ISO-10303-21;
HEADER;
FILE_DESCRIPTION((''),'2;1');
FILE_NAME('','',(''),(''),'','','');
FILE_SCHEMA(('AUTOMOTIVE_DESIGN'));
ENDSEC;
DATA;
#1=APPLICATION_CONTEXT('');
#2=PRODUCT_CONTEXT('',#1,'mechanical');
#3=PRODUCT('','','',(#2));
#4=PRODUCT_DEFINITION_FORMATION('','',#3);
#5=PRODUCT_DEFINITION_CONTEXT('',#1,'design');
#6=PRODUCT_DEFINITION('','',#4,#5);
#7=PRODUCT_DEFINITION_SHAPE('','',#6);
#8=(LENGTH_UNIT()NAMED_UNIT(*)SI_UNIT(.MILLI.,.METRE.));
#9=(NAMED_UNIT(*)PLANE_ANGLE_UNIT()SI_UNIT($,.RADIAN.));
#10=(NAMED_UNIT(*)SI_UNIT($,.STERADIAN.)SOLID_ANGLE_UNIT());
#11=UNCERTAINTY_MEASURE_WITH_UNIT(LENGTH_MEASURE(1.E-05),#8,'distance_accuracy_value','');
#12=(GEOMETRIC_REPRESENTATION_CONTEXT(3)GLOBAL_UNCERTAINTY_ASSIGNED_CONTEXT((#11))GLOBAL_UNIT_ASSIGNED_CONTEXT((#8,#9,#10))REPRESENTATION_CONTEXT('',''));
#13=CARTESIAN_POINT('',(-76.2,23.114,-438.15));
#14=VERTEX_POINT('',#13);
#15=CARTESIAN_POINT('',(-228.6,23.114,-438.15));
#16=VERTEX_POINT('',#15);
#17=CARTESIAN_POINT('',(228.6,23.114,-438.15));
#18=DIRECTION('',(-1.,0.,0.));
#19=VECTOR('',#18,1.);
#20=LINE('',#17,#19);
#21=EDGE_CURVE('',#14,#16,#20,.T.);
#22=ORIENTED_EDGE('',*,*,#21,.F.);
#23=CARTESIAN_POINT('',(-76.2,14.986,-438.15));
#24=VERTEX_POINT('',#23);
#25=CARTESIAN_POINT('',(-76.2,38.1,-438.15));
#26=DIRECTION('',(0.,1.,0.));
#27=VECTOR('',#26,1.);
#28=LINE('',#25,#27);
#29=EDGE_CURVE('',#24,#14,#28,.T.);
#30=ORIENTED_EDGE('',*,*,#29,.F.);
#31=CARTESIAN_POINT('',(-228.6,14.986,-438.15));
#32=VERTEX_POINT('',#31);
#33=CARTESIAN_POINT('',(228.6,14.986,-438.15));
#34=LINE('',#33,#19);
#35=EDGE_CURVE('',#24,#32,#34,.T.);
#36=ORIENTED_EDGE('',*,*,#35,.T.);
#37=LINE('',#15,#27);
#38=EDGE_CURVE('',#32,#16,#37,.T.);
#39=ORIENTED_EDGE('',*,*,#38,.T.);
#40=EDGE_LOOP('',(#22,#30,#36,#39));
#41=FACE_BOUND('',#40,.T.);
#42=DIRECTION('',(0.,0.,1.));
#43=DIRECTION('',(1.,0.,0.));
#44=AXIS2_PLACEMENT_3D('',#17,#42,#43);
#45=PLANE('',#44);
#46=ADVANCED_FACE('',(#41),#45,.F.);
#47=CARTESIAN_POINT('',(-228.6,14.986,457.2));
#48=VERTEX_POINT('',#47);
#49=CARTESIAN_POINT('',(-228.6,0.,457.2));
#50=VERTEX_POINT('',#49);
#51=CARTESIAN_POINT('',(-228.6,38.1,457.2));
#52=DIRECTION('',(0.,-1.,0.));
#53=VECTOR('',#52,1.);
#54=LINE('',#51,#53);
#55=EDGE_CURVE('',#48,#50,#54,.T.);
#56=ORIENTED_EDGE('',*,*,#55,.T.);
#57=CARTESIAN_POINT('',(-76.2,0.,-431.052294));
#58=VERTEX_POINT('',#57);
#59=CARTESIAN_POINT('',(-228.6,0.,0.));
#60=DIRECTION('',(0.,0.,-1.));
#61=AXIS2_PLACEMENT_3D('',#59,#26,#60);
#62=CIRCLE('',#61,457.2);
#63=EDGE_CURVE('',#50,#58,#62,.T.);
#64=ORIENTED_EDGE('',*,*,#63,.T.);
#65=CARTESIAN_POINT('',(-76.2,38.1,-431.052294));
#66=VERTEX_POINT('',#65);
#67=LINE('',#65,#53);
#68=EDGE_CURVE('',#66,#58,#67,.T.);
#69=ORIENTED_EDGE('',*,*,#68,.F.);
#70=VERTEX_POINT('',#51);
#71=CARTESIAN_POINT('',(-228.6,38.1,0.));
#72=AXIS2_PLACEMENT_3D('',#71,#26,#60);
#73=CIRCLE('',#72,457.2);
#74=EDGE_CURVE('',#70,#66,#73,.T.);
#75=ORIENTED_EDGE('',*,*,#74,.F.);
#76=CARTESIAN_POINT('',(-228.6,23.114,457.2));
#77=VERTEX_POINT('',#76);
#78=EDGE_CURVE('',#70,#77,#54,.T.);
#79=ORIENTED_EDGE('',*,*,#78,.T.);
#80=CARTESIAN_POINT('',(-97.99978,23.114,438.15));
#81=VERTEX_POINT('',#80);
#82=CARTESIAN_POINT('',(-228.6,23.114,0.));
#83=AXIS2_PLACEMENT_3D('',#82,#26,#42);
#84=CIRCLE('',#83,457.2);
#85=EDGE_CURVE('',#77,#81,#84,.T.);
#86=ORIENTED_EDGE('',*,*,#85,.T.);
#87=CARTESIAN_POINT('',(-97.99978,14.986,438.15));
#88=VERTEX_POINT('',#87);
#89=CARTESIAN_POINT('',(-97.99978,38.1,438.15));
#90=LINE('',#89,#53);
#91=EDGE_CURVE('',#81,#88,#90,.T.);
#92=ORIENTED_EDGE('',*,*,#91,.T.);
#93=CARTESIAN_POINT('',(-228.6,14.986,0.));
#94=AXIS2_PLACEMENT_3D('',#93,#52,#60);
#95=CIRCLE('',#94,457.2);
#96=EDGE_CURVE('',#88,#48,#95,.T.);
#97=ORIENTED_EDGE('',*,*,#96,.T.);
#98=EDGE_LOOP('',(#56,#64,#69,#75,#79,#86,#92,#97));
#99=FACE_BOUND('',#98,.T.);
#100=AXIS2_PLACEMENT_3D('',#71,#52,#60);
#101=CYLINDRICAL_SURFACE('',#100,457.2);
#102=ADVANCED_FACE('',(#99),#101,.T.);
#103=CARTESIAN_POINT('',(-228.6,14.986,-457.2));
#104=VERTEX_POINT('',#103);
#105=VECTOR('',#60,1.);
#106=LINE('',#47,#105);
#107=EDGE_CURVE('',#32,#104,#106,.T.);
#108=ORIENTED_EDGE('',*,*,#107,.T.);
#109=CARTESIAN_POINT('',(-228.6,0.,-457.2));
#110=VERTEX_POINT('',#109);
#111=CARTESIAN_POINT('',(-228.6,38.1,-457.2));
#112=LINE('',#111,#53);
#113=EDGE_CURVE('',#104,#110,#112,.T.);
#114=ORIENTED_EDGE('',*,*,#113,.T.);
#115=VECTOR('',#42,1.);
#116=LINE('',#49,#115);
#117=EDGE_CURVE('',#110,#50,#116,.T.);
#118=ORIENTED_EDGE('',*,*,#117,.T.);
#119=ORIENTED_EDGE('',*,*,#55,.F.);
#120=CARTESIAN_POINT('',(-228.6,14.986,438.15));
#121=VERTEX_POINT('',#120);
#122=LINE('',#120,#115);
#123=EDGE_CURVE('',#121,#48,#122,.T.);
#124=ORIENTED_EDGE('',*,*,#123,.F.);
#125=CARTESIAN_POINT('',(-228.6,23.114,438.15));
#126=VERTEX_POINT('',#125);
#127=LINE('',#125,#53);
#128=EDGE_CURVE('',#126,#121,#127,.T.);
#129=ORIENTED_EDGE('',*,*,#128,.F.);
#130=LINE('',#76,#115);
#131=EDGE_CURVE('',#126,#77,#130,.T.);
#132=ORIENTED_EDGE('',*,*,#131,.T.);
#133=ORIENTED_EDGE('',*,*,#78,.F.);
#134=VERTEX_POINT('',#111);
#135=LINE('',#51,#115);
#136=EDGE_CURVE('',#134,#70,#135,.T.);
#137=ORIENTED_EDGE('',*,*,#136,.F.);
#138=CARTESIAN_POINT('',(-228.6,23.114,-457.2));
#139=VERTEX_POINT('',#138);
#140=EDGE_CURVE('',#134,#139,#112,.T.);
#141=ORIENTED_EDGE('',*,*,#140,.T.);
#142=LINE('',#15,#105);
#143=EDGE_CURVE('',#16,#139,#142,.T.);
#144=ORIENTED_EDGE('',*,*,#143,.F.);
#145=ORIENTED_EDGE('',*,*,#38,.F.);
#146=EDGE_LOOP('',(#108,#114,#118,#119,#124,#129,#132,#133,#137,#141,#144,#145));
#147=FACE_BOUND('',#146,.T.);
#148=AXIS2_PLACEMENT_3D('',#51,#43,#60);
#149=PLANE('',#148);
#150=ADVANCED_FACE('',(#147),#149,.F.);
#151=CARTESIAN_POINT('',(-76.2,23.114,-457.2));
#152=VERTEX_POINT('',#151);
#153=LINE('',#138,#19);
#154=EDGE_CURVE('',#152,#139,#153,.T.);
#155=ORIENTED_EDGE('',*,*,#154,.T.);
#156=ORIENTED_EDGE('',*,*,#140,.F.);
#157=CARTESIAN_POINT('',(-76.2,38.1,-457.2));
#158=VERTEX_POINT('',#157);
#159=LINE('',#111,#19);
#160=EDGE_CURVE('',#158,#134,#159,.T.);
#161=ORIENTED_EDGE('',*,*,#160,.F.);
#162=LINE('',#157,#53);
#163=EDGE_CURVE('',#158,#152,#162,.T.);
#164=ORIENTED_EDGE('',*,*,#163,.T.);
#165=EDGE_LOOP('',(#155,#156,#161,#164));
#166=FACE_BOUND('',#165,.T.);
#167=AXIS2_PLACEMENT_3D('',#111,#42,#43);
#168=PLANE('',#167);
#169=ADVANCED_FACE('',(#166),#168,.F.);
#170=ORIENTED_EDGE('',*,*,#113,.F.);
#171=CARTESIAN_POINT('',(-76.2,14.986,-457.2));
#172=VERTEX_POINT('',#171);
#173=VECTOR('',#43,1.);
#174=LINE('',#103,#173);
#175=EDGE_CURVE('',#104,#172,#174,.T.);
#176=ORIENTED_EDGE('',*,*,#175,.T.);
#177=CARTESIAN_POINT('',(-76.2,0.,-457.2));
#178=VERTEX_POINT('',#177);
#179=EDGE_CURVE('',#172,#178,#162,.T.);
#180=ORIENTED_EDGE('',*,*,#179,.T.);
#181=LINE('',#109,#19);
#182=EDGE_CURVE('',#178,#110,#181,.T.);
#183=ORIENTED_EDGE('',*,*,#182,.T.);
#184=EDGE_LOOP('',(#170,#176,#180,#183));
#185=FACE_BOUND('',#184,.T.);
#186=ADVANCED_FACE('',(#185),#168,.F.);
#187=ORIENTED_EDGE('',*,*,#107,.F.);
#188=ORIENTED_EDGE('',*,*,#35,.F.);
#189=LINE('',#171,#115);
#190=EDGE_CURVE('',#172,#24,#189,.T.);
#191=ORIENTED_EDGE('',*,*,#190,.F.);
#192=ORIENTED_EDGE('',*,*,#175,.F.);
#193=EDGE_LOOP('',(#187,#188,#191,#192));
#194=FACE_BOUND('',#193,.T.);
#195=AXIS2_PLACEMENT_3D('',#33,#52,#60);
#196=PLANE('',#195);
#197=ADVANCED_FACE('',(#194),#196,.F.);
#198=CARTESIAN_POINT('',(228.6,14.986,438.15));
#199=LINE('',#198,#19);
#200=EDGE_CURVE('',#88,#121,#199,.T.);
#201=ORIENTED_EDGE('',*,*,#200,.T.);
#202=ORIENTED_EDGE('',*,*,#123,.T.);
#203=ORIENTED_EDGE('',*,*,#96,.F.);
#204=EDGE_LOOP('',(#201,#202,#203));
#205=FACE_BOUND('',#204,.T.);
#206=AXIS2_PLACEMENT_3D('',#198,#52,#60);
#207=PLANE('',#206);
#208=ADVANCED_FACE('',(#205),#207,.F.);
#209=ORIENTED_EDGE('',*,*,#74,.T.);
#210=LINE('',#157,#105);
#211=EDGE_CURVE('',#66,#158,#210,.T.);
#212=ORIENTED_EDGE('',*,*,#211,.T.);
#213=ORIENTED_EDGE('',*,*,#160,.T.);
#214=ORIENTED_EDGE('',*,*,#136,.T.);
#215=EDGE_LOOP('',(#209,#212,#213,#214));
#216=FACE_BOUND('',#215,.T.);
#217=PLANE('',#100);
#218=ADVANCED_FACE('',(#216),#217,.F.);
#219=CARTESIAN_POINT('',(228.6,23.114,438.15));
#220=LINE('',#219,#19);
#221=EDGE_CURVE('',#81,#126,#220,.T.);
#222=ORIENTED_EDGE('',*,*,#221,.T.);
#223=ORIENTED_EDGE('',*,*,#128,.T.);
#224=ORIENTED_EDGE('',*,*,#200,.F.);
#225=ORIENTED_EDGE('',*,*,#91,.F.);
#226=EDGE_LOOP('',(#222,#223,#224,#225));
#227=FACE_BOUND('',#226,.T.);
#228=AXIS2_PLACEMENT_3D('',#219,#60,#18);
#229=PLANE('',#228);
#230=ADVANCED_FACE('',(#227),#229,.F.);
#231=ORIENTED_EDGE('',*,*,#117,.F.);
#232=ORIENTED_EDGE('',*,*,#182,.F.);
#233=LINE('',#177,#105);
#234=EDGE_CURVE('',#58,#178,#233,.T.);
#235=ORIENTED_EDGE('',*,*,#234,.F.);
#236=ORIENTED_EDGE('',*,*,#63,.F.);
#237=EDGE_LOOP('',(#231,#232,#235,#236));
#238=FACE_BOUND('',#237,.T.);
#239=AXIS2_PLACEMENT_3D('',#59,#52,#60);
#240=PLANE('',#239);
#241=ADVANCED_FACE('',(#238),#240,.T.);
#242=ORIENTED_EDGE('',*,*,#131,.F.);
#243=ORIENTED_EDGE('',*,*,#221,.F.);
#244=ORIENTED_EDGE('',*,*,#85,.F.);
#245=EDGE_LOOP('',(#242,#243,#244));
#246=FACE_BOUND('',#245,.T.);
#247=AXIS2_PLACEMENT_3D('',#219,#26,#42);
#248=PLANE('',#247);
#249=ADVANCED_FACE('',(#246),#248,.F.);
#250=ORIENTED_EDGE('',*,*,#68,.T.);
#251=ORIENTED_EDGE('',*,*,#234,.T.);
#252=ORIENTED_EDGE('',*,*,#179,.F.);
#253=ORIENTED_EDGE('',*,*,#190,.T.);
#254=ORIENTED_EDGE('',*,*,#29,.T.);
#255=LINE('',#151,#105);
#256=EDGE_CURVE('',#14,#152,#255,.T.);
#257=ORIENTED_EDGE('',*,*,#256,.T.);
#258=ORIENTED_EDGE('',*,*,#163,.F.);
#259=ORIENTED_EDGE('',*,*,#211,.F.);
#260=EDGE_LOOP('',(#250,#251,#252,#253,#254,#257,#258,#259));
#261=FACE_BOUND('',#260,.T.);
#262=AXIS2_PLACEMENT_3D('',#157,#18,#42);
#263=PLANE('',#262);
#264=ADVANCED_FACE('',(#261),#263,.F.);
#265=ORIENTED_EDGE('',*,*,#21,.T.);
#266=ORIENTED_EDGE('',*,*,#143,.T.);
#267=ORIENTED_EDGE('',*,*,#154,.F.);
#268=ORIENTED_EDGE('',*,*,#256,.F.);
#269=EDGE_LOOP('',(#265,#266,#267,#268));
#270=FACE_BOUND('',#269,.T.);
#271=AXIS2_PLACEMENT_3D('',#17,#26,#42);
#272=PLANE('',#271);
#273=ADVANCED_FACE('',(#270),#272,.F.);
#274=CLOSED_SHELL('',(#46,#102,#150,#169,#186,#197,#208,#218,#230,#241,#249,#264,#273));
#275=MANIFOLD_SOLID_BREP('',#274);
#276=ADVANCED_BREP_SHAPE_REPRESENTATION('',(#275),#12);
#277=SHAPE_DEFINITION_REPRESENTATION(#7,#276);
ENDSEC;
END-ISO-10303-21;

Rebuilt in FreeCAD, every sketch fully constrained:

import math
import FreeCAD as App
import Part
import Sketcher
Q = App.Units.Quantity


def add_polygon(sketch, points):
    """Adds a closed chain of lines whose ends are joined by coincident constraints."""
    first, n = sketch.GeometryCount, len(points)
    for a, b in zip(points, points[1:] + points[:1]):
        sketch.addGeometry(Part.LineSegment(App.Vector(*a, 0), App.Vector(*b, 0)), False)
    for i in range(n):
        sketch.addConstraint(Sketcher.Constraint("Coincident", first + i, 2, first + (i + 1) % n, 1))

doc = App.newDocument("Part")
body = doc.addObject("PartDesign::Body", "Body")

# Sketch on XZ plane
sketch1 = body.newObject("Sketcher::SketchObject", "Sketch")
sketch1.AttachmentSupport = (doc.getObject("XZ_Plane"), [""])
sketch1.MapMode = "FlatFace"
sketch1.addGeometry(Part.LineSegment(App.Vector(-76.2, -457.2, 0), App.Vector(-228.6, -457.2, 0)), False)
sketch1.addGeometry(Part.LineSegment(App.Vector(-228.6, -457.2, 0), App.Vector(-228.6, 457.2, 0)), False)
sketch1.addGeometry(Part.ArcOfCircle(Part.Circle(App.Vector(-228.6, 0, 0), App.Vector(0, 0, 1), 457.2), math.radians(-70.528779), math.radians(90)), False)
sketch1.addGeometry(Part.LineSegment(App.Vector(-76.2, -431.052294, 0), App.Vector(-76.2, -457.2, 0)), False)
sketch1.addConstraint(Sketcher.Constraint("Coincident", 0, 2, 1, 1))
sketch1.addConstraint(Sketcher.Constraint("Coincident", 1, 2, 2, 2))
sketch1.addConstraint(Sketcher.Constraint("Coincident", 2, 1, 3, 1))
sketch1.addConstraint(Sketcher.Constraint("Coincident", 3, 2, 0, 1))
sketch1.addConstraint(Sketcher.Constraint("Horizontal", 0))
sketch1.addConstraint(Sketcher.Constraint("Vertical", 1))
sketch1.addConstraint(Sketcher.Constraint("Vertical", 3))
sketch1.addConstraint(Sketcher.Constraint("PointOnObject", 2, 3, -1))
sketch1.addConstraint(Sketcher.Constraint("Vertical", 2, 3, 0, 2))
sketch1.addConstraint(Sketcher.Constraint("Radius", 2, Q("18 in")))
sketch1.addConstraint(Sketcher.Constraint("DistanceX", 0, 2, 0, 1, Q("6 in")))
sketch1.addConstraint(Sketcher.Constraint("DistanceY", 1, 1, 1, 2, Q("36 in")))
sketch1.addConstraint(Sketcher.Constraint("DistanceX", 2, 3, -1, 1, Q("9 in")))
pad1 = body.newObject("PartDesign::Pad", "Pad")
pad1.Profile = sketch1
pad1.Length = Q("1.5 in")
pad1.Reversed = True

# Sketch on YZ plane
sketch2 = body.newObject("Sketcher::SketchObject", "Sketch001")
sketch2.AttachmentSupport = (doc.getObject("YZ_Plane"), [""])
sketch2.MapMode = "FlatFace"
sketch2.AttachmentOffset = App.Placement(App.Vector(0, 0, -9 * 25.4), App.Rotation())
add_polygon(sketch2, [(23.114, 438.15), (14.986, 438.15), (14.986, 476.25), (23.114, 476.25)])  # lines 0-3
add_polygon(sketch2, [(23.114, -476.25), (14.986, -476.25), (14.986, -438.15), (23.114, -438.15)])  # lines 4-7
sketch2.addConstraint(Sketcher.Constraint("Horizontal", 0))
sketch2.addConstraint(Sketcher.Constraint("Vertical", 1))
sketch2.addConstraint(Sketcher.Constraint("Horizontal", 2))
sketch2.addConstraint(Sketcher.Constraint("Vertical", 3))
sketch2.addConstraint(Sketcher.Constraint("Horizontal", 4))
sketch2.addConstraint(Sketcher.Constraint("Vertical", 5))
sketch2.addConstraint(Sketcher.Constraint("Horizontal", 6))
sketch2.addConstraint(Sketcher.Constraint("Vertical", 7))
sketch2.addConstraint(Sketcher.Constraint("Symmetric", 1, 2, 4, 2, -1))
sketch2.addConstraint(Sketcher.Constraint("Symmetric", 3, 2, 6, 2, -1))
sketch2.addConstraint(Sketcher.Constraint("DistanceY", 1, 1, 1, 2, Q("1.5 in")))
sketch2.addConstraint(Sketcher.Constraint("DistanceY", 4, 2, 0, 2, Q("36 in")))
sketch2.addConstraint(Sketcher.Constraint("DistanceX", 0, 2, 0, 1, Q("0.32 in")))
sketch2.addConstraint(Sketcher.Constraint("DistanceX", -1, 1, 0, 2, Q("0.59 in")))
pocket1 = body.newObject("PartDesign::Pocket", "Pocket")
pocket1.Profile = sketch2
pocket1.Type = "ThroughAll"
pocket1.Reversed = True

doc.recompute()
